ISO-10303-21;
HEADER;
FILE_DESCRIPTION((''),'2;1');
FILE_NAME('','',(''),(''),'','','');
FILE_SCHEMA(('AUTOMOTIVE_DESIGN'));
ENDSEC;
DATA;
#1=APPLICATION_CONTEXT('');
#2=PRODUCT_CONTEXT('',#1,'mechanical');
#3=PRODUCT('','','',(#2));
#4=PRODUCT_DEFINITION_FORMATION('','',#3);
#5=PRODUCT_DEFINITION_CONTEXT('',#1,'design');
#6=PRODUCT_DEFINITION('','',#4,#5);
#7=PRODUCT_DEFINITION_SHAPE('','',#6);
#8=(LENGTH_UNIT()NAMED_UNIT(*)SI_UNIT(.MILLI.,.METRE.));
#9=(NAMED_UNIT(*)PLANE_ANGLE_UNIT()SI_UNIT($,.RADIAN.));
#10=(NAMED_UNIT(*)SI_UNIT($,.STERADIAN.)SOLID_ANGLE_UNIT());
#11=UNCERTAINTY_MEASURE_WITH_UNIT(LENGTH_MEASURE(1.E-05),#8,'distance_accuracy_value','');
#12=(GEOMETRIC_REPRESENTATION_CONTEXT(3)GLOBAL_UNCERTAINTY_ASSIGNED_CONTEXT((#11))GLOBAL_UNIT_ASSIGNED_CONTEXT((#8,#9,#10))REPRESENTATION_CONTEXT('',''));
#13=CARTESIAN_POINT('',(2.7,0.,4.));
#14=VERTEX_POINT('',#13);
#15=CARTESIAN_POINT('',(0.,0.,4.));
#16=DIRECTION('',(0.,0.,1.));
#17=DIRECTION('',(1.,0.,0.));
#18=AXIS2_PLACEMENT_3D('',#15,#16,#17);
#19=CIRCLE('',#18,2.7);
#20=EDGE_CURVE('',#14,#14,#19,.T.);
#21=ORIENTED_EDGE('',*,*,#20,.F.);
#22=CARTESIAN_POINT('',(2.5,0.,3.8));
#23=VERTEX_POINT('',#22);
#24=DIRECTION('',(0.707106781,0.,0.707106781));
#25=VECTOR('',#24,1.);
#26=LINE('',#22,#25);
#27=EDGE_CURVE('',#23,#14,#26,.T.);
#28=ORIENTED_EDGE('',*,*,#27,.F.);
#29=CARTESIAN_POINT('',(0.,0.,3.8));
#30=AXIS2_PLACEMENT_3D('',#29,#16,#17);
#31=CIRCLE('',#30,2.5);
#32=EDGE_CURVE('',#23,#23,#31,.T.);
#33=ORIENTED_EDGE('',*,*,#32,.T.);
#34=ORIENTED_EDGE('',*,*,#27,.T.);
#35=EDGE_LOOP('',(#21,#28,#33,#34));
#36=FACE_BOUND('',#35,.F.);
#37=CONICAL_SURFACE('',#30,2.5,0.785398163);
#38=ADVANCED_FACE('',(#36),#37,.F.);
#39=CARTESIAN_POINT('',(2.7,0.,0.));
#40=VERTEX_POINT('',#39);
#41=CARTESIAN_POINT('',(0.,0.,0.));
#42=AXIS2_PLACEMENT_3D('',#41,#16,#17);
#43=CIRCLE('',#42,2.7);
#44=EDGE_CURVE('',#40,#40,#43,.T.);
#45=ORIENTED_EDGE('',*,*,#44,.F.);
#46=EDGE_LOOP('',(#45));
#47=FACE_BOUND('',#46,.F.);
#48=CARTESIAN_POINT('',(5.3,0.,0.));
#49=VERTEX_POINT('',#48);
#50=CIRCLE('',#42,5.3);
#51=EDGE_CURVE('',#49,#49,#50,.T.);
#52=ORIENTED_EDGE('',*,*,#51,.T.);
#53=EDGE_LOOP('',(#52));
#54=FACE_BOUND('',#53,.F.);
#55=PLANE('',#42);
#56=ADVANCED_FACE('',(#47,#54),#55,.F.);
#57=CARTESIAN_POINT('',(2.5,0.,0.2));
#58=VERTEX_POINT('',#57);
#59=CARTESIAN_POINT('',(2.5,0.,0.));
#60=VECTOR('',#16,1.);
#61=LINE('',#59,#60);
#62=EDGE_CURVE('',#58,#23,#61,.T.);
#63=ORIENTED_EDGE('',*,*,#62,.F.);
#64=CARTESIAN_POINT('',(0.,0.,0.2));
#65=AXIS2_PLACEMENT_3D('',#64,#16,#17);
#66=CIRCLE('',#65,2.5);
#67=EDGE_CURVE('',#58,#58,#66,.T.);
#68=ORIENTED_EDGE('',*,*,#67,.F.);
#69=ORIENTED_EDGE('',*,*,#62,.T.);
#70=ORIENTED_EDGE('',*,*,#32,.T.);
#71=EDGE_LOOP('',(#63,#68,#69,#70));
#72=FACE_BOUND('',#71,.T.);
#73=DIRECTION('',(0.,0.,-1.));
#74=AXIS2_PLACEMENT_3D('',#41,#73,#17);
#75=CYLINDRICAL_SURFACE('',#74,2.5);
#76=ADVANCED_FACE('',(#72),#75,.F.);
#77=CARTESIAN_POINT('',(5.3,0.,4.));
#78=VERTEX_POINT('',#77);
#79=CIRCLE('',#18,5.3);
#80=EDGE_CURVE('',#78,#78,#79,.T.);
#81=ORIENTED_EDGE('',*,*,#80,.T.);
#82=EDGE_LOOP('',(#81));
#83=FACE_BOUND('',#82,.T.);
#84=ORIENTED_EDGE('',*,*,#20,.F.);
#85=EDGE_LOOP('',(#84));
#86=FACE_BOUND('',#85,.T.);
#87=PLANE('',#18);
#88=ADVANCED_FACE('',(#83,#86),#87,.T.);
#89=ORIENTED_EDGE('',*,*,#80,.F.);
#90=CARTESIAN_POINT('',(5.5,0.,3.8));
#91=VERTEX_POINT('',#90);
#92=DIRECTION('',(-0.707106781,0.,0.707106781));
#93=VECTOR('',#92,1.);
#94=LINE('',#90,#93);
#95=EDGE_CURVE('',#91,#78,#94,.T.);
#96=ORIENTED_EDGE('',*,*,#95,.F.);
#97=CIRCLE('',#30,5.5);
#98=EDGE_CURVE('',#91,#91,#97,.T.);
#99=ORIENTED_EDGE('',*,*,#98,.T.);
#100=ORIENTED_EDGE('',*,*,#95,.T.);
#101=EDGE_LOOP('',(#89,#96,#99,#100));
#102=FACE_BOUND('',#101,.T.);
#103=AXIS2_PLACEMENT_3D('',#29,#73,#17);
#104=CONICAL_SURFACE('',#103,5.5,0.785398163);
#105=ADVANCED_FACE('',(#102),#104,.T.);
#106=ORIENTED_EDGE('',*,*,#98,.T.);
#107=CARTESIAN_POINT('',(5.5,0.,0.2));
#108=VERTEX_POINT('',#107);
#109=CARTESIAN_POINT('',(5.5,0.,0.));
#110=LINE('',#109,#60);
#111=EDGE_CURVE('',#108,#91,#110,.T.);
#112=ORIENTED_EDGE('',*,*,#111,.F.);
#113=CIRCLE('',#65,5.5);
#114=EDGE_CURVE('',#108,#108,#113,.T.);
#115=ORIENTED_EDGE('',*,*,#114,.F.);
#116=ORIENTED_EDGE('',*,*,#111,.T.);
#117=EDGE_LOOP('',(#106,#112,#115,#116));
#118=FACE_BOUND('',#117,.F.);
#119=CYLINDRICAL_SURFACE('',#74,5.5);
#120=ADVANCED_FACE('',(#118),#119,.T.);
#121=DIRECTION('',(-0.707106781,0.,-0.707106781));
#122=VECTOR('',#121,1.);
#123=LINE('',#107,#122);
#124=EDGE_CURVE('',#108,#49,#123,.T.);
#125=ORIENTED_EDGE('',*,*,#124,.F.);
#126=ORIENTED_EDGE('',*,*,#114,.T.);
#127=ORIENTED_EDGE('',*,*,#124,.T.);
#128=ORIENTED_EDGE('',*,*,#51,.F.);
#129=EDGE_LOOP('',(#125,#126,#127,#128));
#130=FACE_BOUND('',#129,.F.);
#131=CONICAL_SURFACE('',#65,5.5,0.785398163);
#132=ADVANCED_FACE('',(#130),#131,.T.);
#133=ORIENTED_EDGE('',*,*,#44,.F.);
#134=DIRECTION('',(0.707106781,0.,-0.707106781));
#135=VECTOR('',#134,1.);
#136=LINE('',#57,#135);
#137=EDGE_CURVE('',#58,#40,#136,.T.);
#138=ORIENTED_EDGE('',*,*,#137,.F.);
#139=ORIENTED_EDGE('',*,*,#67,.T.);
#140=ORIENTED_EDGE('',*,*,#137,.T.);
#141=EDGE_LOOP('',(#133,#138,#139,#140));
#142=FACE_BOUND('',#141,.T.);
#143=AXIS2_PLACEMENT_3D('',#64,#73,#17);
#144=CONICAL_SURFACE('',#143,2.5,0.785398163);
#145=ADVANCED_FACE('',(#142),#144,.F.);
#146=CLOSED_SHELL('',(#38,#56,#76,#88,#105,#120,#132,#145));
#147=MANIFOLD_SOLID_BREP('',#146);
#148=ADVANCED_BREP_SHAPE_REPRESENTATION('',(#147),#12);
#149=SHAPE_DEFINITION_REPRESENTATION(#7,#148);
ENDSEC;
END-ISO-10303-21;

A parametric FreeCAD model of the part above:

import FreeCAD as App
import Part
import Sketcher
from FreeCAD import Vector


def edges_at(feature, points):
    """Names of the edges that pass closest to the given points."""
    edges = feature.Shape.Edges
    near = lambda p: min(range(len(edges)), key=lambda i: edges[i].distToShape(Part.Vertex(*p))[0])
    return sorted({f"Edge{near(p) + 1}" for p in points})

doc = App.newDocument("Part")
params = doc.addObject("Spreadsheet::Sheet", "Params")
for row, (alias, value) in enumerate([
    ("sketch1_diameter", "11 mm"),
    ("sketch1_diameter2", "5 mm"),
    ("pad1_length", "4 mm"),
    ("chamfer_size", "0.2 mm"),
], start=1):
    params.set(f"A{row}", alias)
    params.set(f"B{row}", "=" + value)
    params.setAlias(f"B{row}", alias)

body = doc.addObject("PartDesign::Body", "Body")

sketch1 = doc.addObject("Sketcher::SketchObject", "Sketch")
body.addObject(sketch1)
sketch1.AttachmentSupport = (doc.XY_Plane, [""])
sketch1.MapMode = "FlatFace"
sketch1.addGeometry([
    Part.Circle(Vector(0, 0, 0), Vector(0, 0, 1), 5.5),
    Part.Circle(Vector(0, 0, 0), Vector(0, 0, 1), 2.5),
], False)
sketch1.addConstraint([
    Sketcher.Constraint("Coincident", 0, 3, -1, 1),
    Sketcher.Constraint("Coincident", 1, 3, -1, 1),
    Sketcher.Constraint("Diameter", 0, 11.0),
    Sketcher.Constraint("Diameter", 1, 5.0),
])
sketch1.setExpression("Constraints[2]", "Params.sketch1_diameter")
sketch1.setExpression("Constraints[3]", "Params.sketch1_diameter2")
pad1 = doc.addObject("PartDesign::Pad", "Pad")
body.addObject(pad1)
pad1.Profile = sketch1
pad1.setExpression("Length", "Params.pad1_length")
doc.recompute()

chamfer = doc.addObject("PartDesign::Chamfer", "Chamfer")
body.addObject(chamfer)
chamfer.Base = (pad1, edges_at(pad1, [
    (-5.5, 0, 0),
    (-5.5, 0, 4),
    (-2.5, 0, 0),
    (-2.5, 0, 4),
]))
chamfer.setExpression("Size", "Params.chamfer_size")

doc.recompute()
